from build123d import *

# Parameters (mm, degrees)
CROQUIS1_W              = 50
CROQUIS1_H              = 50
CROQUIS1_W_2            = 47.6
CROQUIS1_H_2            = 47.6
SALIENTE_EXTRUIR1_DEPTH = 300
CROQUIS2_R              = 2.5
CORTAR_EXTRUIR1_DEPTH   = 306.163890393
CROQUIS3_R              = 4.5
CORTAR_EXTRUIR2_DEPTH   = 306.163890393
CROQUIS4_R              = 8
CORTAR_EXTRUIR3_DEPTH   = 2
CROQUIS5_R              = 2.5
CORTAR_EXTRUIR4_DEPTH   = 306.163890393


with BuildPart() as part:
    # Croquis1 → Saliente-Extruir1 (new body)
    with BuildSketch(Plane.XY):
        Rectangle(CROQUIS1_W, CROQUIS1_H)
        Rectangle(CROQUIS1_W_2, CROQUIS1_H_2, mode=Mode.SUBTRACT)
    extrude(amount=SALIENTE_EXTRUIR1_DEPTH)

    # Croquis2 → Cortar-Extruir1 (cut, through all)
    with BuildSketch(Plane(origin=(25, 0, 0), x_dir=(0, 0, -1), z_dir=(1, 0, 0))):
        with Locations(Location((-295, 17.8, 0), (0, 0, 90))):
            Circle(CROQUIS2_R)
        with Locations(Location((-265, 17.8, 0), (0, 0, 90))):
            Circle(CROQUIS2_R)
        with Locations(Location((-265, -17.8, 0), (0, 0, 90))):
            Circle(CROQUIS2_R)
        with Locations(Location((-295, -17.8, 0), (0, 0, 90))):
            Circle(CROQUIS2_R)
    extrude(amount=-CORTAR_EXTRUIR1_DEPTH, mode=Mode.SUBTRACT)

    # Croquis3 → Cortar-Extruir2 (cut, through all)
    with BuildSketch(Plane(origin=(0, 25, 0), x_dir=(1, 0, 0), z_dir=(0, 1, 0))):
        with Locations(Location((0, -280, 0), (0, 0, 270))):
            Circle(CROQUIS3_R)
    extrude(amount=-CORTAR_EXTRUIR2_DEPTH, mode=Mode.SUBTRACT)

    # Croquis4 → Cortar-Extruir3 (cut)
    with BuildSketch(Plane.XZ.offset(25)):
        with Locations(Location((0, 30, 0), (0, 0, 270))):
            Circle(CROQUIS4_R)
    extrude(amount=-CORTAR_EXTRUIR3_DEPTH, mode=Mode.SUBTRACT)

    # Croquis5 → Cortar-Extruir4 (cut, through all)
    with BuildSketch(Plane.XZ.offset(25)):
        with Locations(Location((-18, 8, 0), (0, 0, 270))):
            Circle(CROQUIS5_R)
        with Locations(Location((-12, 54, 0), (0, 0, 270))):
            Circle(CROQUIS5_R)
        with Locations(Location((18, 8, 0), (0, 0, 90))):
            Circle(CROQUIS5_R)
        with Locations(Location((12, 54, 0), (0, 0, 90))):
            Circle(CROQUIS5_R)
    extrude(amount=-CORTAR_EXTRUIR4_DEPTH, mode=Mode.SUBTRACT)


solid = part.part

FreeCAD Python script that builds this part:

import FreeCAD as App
import Part
import Sketcher
from FreeCAD import Vector
Q = App.Units.Quantity

doc = App.newDocument("Part")
body = doc.addObject("PartDesign::Body", "Body")

sketch1 = body.newObject("Sketcher::SketchObject", "Sketch")
sketch1.AttachmentSupport = (doc.getObject("XY_Plane"), [""])
sketch1.MapMode = "FlatFace"
sketch1.addGeometry([
    Part.LineSegment(Vector(-25, 25, 0), Vector(-25, -25, 0)),
    Part.LineSegment(Vector(-25, -25, 0), Vector(25, -25, 0)),
    Part.LineSegment(Vector(25, -25, 0), Vector(25, 25, 0)),
    Part.LineSegment(Vector(25, 25, 0), Vector(-25, 25, 0)),
    Part.LineSegment(Vector(24, -24, 0), Vector(-24, -24, 0)),
    Part.LineSegment(Vector(-24, -24, 0), Vector(-24, 24, 0)),
    Part.LineSegment(Vector(-24, 24, 0), Vector(24, 24, 0)),
    Part.LineSegment(Vector(24, 24, 0), Vector(24, -24, 0)),
], False)
sketch1.addConstraint([
    Sketcher.Constraint("Coincident", 0, 2, 1, 1),
    Sketcher.Constraint("Coincident", 1, 2, 2, 1),
    Sketcher.Constraint("Coincident", 2, 2, 3, 1),
    Sketcher.Constraint("Coincident", 3, 2, 0, 1),
    Sketcher.Constraint("Coincident", 4, 2, 5, 1),
    Sketcher.Constraint("Coincident", 5, 2, 6, 1),
    Sketcher.Constraint("Coincident", 6, 2, 7, 1),
    Sketcher.Constraint("Coincident", 7, 2, 4, 1),
    Sketcher.Constraint("Vertical", 0),
    Sketcher.Constraint("Horizontal", 1),
    Sketcher.Constraint("Vertical", 2),
    Sketcher.Constraint("Horizontal", 3),
    Sketcher.Constraint("Horizontal", 4),
    Sketcher.Constraint("Vertical", 5),
    Sketcher.Constraint("Horizontal", 6),
    Sketcher.Constraint("Vertical", 7),
    Sketcher.Constraint("Symmetric", 0, 2, 2, 2, -1, 1),
    Sketcher.Constraint("Symmetric", 4, 2, 6, 2, -1, 1),
    Sketcher.Constraint("Equal", 3, 0),
    Sketcher.Constraint("Equal", 6, 5),
    Sketcher.Constraint("DistanceX", 1, 1, 1, 2, Q("50 mm")),
    Sketcher.Constraint("DistanceX", 4, 2, 4, 1, Q("47.6 mm")),
])
pad1 = body.newObject("PartDesign::Pad", "Pad")
pad1.Profile = sketch1
pad1.Length = 300

sketch2 = body.newObject("Sketcher::SketchObject", "Sketch001")
sketch2.AttachmentSupport = (doc.getObject("YZ_Plane"), [""])
sketch2.MapMode = "FlatFace"
sketch2.AttachmentOffset = App.Placement(Vector(0, 0, 25), App.Rotation())
sketch2.addGeometry([
    Part.Circle(Vector(17.8, 295, 0), Vector(0, 0, 1), 2.5),
    Part.Circle(Vector(17.8, 265, 0), Vector(0, 0, 1), 2.5),
    Part.Circle(Vector(-17.8, 265, 0), Vector(0, 0, 1), 2.5),
    Part.Circle(Vector(-17.8, 295, 0), Vector(0, 0, 1), 2.5),
], False)
sketch2.addConstraint([
    Sketcher.Constraint("Equal", 0, 1),
    Sketcher.Constraint("Equal", 1, 2),
    Sketcher.Constraint("Equal", 2, 3),
    Sketcher.Constraint("Symmetric", 1, 3, 2, 3, -2),
    Sketcher.Constraint("Symmetric", 0, 3, 3, 3, -2),
    Sketcher.Constraint("Vertical", 0, 3, 1, 3),
    Sketcher.Constraint("Diameter", 0, Q("5 mm")),
    Sketcher.Constraint("DistanceY", -1, 1, 0, 3, Q("295 mm")),
    Sketcher.Constraint("DistanceY", -1, 1, 1, 3, Q("265 mm")),
    Sketcher.Constraint("DistanceX", -1, 1, 0, 3, Q("17.8 mm")),
])
pocket1 = body.newObject("PartDesign::Pocket", "Pocket")
pocket1.Profile = sketch2
pocket1.Type = "ThroughAll"

sketch3 = body.newObject("Sketcher::SketchObject", "Sketch002")
sketch3.AttachmentSupport = (doc.getObject("XZ_Plane"), [""])
sketch3.MapMode = "FlatFace"
sketch3.AttachmentOffset = App.Placement(Vector(0, 0, -25), App.Rotation())
sketch3.addGeometry(Part.Circle(Vector(0, 280, 0), Vector(0, 0, 1), 4.5), False)
sketch3.addConstraint([
    Sketcher.Constraint("PointOnObject", 0, 3, -2),
    Sketcher.Constraint("Diameter", 0, Q("9 mm")),
    Sketcher.Constraint("DistanceY", -1, 1, 0, 3, Q("280 mm")),
])
pocket2 = body.newObject("PartDesign::Pocket", "Pocket001")
pocket2.Profile = sketch3
pocket2.Type = "ThroughAll"
pocket2.Reversed = True

sketch4 = body.newObject("Sketcher::SketchObject", "Sketch003")
sketch4.AttachmentSupport = (doc.getObject("XZ_Plane"), [""])
sketch4.MapMode = "FlatFace"
sketch4.AttachmentOffset = App.Placement(Vector(0, 0, 25), App.Rotation())
sketch4.addGeometry(Part.Circle(Vector(0, 30, 0), Vector(0, 0, 1), 8), False)
sketch4.addConstraint([
    Sketcher.Constraint("PointOnObject", 0, 3, -2),
    Sketcher.Constraint("Diameter", 0, Q("16 mm")),
    Sketcher.Constraint("DistanceY", -1, 1, 0, 3, Q("30 mm")),
])
pocket3 = body.newObject("PartDesign::Pocket", "Pocket002")
pocket3.Profile = sketch4
pocket3.Length = 2

sketch5 = body.newObject("Sketcher::SketchObject", "Sketch004")
sketch5.AttachmentSupport = (doc.getObject("XZ_Plane"), [""])
sketch5.MapMode = "FlatFace"
sketch5.AttachmentOffset = App.Placement(Vector(0, 0, 25), App.Rotation())
sketch5.addGeometry([
    Part.Circle(Vector(-18, 8, 0), Vector(0, 0, 1), 2.5),
    Part.Circle(Vector(-12, 54, 0), Vector(0, 0, 1), 2.5),
    Part.Circle(Vector(18, 8, 0), Vector(0, 0, 1), 2.5),
    Part.Circle(Vector(12, 54, 0), Vector(0, 0, 1), 2.5),
], False)
sketch5.addConstraint([
    Sketcher.Constraint("Equal", 0, 1),
    Sketcher.Constraint("Equal", 1, 2),
    Sketcher.Constraint("Equal", 2, 3),
    Sketcher.Constraint("Symmetric", 0, 3, 2, 3, -2),
    Sketcher.Constraint("Symmetric", 1, 3, 3, 3, -2),
    Sketcher.Constraint("Diameter", 0, Q("5 mm")),
    Sketcher.Constraint("DistanceX", 0, 3, -1, 1, Q("18 mm")),
    Sketcher.Constraint("DistanceY", -1, 1, 0, 3, Q("8 mm")),
    Sketcher.Constraint("DistanceX", 1, 3, -1, 1, Q("12 mm")),
    Sketcher.Constraint("DistanceY", -1, 1, 1, 3, Q("54 mm")),
])
pocket4 = body.newObject("PartDesign::Pocket", "Pocket003")
pocket4.Profile = sketch5
pocket4.Type = "ThroughAll"

doc.recompute()
